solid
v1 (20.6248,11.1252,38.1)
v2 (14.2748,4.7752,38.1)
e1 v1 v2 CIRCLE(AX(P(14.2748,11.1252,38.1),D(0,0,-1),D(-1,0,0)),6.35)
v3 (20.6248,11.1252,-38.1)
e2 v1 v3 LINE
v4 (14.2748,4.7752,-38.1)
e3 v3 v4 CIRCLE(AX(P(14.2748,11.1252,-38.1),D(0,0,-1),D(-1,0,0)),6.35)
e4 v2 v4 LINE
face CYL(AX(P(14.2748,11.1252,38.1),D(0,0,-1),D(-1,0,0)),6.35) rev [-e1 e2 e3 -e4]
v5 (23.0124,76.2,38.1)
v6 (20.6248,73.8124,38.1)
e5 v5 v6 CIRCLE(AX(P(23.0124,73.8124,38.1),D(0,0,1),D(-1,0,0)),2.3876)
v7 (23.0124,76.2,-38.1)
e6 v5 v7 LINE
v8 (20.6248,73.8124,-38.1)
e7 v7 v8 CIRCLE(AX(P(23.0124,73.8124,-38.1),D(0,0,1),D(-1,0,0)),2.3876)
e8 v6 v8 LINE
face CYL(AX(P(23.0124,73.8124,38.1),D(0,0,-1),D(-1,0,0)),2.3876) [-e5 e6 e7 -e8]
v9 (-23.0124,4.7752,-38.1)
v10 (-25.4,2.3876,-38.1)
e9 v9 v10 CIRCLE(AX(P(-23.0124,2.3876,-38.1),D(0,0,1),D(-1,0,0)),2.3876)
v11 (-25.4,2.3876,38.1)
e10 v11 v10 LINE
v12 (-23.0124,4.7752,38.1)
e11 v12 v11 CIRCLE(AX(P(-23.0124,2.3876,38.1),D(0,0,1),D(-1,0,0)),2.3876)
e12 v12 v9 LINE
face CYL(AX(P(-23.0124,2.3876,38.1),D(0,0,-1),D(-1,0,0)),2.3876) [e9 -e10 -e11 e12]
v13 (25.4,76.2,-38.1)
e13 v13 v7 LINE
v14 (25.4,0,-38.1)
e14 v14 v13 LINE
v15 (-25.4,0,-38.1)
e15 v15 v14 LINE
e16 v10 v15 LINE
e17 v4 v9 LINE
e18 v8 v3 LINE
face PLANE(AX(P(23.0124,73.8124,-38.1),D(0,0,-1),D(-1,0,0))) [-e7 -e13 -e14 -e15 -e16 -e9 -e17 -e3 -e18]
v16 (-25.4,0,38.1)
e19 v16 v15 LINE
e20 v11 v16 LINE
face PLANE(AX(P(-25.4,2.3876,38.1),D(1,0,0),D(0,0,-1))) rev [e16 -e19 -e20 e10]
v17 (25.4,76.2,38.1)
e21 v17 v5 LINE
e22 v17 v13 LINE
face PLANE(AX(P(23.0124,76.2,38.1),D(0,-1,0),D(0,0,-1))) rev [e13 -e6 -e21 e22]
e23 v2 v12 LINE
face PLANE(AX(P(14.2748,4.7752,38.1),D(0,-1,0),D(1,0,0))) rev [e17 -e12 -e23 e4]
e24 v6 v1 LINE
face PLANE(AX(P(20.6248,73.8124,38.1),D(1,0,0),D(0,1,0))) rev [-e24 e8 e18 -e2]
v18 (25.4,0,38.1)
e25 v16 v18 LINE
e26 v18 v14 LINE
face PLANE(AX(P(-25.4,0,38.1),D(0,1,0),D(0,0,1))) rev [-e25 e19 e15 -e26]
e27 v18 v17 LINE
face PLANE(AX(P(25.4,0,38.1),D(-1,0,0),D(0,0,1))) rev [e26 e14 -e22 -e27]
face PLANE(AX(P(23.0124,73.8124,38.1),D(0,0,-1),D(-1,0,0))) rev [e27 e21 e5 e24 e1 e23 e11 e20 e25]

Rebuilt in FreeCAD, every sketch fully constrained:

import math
import FreeCAD as App
import Part
import Sketcher

V = App.Vector
Q = App.Units.Quantity

doc = App.newDocument("Part")
params = doc.addObject("Spreadsheet::Sheet", "Params")
for row, (alias, value) in enumerate([
    ("sketch1_width", "2 in"),
    ("sketch1_height", "3 in"),
    ("sketch1_radius", "0.25 in"),
    ("sketch1_radius2", "0.094 in"),
    ("sketch1_width2", "0.094 in"),
    ("pad1_length", "3 in"),
], start=1):
    params.set(f"A{row}", alias)
    params.set(f"B{row}", "=" + value)
    params.setAlias(f"B{row}", alias)

body = doc.addObject("PartDesign::Body", "Body")

# Sketch on XY plane
sketch1 = body.newObject("Sketcher::SketchObject", "Sketch")
sketch1.AttachmentSupport = (doc.getObject("XY_Plane"), [""])
sketch1.MapMode = "FlatFace"
sketch1.addGeometry(Part.LineSegment(V(-25.4, 0, 0), V(25.4, 0, 0)), False)
sketch1.addGeometry(Part.LineSegment(V(25.4, 0, 0), V(25.4, 76.2, 0)), False)
sketch1.addGeometry(Part.LineSegment(V(25.4, 76.2, 0), V(23, 76.2, 0)), False)
sketch1.addGeometry(Part.ArcOfCircle(Part.Circle(V(23, 73.8, 0), V(0, 0, 1), 2.4), math.radians(90), math.radians(180)), False)
sketch1.addGeometry(Part.LineSegment(V(20.6, 73.8, 0), V(20.6, 11.1, 0)), False)
sketch1.addGeometry(Part.ArcOfCircle(Part.Circle(V(14.3, 11.1, 0), V(0, 0, 1), 6.3), math.radians(-90), math.radians(0)), False)
sketch1.addGeometry(Part.LineSegment(V(14.3, 4.8, 0), V(-23, 4.8, 0)), False)
sketch1.addGeometry(Part.ArcOfCircle(Part.Circle(V(-23, 2.4, 0), V(0, 0, 1), 2.4), math.radians(90), math.radians(180)), False)
sketch1.addGeometry(Part.LineSegment(V(-25.4, 2.4, 0), V(-25.4, 0, 0)), False)
sketch1.addConstraint(Sketcher.Constraint("Coincident", 0, 2, 1, 1))
sketch1.addConstraint(Sketcher.Constraint("Coincident", 1, 2, 2, 1))
sketch1.addConstraint(Sketcher.Constraint("Tangent", 2, 2, 3, 1))
sketch1.addConstraint(Sketcher.Constraint("Tangent", 3, 2, 4, 1))
sketch1.addConstraint(Sketcher.Constraint("Tangent", 4, 2, 5, 2))
sketch1.addConstraint(Sketcher.Constraint("Tangent", 5, 1, 6, 1))
sketch1.addConstraint(Sketcher.Constraint("Tangent", 6, 2, 7, 1))
sketch1.addConstraint(Sketcher.Constraint("Tangent", 7, 2, 8, 1))
sketch1.addConstraint(Sketcher.Constraint("Coincident", 8, 2, 0, 1))
sketch1.addConstraint(Sketcher.Constraint("Horizontal", 0))
sketch1.addConstraint(Sketcher.Constraint("Vertical", 1))
sketch1.addConstraint(Sketcher.Constraint("Horizontal", 2))
sketch1.addConstraint(Sketcher.Constraint("Vertical", 4))
sketch1.addConstraint(Sketcher.Constraint("Horizontal", 6))
sketch1.addConstraint(Sketcher.Constraint("Vertical", 8))
sketch1.addConstraint(Sketcher.Constraint("Equal", 3, 7))
sketch1.addConstraint(Sketcher.Constraint("Symmetric", 0, 2, 8, 2, -1, 1))
sketch1.addConstraint(Sketcher.Constraint("Equal", 2, 8))
sketch1.addConstraint(Sketcher.Constraint("DistanceX", 0, 1, 0, 2, Q("2 in")))
sketch1.addConstraint(Sketcher.Constraint("DistanceY", 1, 1, 1, 2, Q("3 in")))
sketch1.addConstraint(Sketcher.Constraint("Radius", 5, Q("0.25 in")))
sketch1.addConstraint(Sketcher.Constraint("Radius", 3, Q("0.094 in")))
sketch1.addConstraint(Sketcher.Constraint("DistanceX", 2, 2, 2, 1, Q("0.094 in")))
sketch1.setExpression("Constraints[18]", "Params.sketch1_width")
sketch1.setExpression("Constraints[19]", "Params.sketch1_height")
sketch1.setExpression("Constraints[20]", "Params.sketch1_radius")
sketch1.setExpression("Constraints[21]", "Params.sketch1_radius2")
sketch1.setExpression("Constraints[22]", "Params.sketch1_width2")
pad1 = body.newObject("PartDesign::Pad", "Pad")
pad1.Profile = sketch1
pad1.setExpression("Length", "Params.pad1_length")
pad1.Midplane = True

doc.recompute()
